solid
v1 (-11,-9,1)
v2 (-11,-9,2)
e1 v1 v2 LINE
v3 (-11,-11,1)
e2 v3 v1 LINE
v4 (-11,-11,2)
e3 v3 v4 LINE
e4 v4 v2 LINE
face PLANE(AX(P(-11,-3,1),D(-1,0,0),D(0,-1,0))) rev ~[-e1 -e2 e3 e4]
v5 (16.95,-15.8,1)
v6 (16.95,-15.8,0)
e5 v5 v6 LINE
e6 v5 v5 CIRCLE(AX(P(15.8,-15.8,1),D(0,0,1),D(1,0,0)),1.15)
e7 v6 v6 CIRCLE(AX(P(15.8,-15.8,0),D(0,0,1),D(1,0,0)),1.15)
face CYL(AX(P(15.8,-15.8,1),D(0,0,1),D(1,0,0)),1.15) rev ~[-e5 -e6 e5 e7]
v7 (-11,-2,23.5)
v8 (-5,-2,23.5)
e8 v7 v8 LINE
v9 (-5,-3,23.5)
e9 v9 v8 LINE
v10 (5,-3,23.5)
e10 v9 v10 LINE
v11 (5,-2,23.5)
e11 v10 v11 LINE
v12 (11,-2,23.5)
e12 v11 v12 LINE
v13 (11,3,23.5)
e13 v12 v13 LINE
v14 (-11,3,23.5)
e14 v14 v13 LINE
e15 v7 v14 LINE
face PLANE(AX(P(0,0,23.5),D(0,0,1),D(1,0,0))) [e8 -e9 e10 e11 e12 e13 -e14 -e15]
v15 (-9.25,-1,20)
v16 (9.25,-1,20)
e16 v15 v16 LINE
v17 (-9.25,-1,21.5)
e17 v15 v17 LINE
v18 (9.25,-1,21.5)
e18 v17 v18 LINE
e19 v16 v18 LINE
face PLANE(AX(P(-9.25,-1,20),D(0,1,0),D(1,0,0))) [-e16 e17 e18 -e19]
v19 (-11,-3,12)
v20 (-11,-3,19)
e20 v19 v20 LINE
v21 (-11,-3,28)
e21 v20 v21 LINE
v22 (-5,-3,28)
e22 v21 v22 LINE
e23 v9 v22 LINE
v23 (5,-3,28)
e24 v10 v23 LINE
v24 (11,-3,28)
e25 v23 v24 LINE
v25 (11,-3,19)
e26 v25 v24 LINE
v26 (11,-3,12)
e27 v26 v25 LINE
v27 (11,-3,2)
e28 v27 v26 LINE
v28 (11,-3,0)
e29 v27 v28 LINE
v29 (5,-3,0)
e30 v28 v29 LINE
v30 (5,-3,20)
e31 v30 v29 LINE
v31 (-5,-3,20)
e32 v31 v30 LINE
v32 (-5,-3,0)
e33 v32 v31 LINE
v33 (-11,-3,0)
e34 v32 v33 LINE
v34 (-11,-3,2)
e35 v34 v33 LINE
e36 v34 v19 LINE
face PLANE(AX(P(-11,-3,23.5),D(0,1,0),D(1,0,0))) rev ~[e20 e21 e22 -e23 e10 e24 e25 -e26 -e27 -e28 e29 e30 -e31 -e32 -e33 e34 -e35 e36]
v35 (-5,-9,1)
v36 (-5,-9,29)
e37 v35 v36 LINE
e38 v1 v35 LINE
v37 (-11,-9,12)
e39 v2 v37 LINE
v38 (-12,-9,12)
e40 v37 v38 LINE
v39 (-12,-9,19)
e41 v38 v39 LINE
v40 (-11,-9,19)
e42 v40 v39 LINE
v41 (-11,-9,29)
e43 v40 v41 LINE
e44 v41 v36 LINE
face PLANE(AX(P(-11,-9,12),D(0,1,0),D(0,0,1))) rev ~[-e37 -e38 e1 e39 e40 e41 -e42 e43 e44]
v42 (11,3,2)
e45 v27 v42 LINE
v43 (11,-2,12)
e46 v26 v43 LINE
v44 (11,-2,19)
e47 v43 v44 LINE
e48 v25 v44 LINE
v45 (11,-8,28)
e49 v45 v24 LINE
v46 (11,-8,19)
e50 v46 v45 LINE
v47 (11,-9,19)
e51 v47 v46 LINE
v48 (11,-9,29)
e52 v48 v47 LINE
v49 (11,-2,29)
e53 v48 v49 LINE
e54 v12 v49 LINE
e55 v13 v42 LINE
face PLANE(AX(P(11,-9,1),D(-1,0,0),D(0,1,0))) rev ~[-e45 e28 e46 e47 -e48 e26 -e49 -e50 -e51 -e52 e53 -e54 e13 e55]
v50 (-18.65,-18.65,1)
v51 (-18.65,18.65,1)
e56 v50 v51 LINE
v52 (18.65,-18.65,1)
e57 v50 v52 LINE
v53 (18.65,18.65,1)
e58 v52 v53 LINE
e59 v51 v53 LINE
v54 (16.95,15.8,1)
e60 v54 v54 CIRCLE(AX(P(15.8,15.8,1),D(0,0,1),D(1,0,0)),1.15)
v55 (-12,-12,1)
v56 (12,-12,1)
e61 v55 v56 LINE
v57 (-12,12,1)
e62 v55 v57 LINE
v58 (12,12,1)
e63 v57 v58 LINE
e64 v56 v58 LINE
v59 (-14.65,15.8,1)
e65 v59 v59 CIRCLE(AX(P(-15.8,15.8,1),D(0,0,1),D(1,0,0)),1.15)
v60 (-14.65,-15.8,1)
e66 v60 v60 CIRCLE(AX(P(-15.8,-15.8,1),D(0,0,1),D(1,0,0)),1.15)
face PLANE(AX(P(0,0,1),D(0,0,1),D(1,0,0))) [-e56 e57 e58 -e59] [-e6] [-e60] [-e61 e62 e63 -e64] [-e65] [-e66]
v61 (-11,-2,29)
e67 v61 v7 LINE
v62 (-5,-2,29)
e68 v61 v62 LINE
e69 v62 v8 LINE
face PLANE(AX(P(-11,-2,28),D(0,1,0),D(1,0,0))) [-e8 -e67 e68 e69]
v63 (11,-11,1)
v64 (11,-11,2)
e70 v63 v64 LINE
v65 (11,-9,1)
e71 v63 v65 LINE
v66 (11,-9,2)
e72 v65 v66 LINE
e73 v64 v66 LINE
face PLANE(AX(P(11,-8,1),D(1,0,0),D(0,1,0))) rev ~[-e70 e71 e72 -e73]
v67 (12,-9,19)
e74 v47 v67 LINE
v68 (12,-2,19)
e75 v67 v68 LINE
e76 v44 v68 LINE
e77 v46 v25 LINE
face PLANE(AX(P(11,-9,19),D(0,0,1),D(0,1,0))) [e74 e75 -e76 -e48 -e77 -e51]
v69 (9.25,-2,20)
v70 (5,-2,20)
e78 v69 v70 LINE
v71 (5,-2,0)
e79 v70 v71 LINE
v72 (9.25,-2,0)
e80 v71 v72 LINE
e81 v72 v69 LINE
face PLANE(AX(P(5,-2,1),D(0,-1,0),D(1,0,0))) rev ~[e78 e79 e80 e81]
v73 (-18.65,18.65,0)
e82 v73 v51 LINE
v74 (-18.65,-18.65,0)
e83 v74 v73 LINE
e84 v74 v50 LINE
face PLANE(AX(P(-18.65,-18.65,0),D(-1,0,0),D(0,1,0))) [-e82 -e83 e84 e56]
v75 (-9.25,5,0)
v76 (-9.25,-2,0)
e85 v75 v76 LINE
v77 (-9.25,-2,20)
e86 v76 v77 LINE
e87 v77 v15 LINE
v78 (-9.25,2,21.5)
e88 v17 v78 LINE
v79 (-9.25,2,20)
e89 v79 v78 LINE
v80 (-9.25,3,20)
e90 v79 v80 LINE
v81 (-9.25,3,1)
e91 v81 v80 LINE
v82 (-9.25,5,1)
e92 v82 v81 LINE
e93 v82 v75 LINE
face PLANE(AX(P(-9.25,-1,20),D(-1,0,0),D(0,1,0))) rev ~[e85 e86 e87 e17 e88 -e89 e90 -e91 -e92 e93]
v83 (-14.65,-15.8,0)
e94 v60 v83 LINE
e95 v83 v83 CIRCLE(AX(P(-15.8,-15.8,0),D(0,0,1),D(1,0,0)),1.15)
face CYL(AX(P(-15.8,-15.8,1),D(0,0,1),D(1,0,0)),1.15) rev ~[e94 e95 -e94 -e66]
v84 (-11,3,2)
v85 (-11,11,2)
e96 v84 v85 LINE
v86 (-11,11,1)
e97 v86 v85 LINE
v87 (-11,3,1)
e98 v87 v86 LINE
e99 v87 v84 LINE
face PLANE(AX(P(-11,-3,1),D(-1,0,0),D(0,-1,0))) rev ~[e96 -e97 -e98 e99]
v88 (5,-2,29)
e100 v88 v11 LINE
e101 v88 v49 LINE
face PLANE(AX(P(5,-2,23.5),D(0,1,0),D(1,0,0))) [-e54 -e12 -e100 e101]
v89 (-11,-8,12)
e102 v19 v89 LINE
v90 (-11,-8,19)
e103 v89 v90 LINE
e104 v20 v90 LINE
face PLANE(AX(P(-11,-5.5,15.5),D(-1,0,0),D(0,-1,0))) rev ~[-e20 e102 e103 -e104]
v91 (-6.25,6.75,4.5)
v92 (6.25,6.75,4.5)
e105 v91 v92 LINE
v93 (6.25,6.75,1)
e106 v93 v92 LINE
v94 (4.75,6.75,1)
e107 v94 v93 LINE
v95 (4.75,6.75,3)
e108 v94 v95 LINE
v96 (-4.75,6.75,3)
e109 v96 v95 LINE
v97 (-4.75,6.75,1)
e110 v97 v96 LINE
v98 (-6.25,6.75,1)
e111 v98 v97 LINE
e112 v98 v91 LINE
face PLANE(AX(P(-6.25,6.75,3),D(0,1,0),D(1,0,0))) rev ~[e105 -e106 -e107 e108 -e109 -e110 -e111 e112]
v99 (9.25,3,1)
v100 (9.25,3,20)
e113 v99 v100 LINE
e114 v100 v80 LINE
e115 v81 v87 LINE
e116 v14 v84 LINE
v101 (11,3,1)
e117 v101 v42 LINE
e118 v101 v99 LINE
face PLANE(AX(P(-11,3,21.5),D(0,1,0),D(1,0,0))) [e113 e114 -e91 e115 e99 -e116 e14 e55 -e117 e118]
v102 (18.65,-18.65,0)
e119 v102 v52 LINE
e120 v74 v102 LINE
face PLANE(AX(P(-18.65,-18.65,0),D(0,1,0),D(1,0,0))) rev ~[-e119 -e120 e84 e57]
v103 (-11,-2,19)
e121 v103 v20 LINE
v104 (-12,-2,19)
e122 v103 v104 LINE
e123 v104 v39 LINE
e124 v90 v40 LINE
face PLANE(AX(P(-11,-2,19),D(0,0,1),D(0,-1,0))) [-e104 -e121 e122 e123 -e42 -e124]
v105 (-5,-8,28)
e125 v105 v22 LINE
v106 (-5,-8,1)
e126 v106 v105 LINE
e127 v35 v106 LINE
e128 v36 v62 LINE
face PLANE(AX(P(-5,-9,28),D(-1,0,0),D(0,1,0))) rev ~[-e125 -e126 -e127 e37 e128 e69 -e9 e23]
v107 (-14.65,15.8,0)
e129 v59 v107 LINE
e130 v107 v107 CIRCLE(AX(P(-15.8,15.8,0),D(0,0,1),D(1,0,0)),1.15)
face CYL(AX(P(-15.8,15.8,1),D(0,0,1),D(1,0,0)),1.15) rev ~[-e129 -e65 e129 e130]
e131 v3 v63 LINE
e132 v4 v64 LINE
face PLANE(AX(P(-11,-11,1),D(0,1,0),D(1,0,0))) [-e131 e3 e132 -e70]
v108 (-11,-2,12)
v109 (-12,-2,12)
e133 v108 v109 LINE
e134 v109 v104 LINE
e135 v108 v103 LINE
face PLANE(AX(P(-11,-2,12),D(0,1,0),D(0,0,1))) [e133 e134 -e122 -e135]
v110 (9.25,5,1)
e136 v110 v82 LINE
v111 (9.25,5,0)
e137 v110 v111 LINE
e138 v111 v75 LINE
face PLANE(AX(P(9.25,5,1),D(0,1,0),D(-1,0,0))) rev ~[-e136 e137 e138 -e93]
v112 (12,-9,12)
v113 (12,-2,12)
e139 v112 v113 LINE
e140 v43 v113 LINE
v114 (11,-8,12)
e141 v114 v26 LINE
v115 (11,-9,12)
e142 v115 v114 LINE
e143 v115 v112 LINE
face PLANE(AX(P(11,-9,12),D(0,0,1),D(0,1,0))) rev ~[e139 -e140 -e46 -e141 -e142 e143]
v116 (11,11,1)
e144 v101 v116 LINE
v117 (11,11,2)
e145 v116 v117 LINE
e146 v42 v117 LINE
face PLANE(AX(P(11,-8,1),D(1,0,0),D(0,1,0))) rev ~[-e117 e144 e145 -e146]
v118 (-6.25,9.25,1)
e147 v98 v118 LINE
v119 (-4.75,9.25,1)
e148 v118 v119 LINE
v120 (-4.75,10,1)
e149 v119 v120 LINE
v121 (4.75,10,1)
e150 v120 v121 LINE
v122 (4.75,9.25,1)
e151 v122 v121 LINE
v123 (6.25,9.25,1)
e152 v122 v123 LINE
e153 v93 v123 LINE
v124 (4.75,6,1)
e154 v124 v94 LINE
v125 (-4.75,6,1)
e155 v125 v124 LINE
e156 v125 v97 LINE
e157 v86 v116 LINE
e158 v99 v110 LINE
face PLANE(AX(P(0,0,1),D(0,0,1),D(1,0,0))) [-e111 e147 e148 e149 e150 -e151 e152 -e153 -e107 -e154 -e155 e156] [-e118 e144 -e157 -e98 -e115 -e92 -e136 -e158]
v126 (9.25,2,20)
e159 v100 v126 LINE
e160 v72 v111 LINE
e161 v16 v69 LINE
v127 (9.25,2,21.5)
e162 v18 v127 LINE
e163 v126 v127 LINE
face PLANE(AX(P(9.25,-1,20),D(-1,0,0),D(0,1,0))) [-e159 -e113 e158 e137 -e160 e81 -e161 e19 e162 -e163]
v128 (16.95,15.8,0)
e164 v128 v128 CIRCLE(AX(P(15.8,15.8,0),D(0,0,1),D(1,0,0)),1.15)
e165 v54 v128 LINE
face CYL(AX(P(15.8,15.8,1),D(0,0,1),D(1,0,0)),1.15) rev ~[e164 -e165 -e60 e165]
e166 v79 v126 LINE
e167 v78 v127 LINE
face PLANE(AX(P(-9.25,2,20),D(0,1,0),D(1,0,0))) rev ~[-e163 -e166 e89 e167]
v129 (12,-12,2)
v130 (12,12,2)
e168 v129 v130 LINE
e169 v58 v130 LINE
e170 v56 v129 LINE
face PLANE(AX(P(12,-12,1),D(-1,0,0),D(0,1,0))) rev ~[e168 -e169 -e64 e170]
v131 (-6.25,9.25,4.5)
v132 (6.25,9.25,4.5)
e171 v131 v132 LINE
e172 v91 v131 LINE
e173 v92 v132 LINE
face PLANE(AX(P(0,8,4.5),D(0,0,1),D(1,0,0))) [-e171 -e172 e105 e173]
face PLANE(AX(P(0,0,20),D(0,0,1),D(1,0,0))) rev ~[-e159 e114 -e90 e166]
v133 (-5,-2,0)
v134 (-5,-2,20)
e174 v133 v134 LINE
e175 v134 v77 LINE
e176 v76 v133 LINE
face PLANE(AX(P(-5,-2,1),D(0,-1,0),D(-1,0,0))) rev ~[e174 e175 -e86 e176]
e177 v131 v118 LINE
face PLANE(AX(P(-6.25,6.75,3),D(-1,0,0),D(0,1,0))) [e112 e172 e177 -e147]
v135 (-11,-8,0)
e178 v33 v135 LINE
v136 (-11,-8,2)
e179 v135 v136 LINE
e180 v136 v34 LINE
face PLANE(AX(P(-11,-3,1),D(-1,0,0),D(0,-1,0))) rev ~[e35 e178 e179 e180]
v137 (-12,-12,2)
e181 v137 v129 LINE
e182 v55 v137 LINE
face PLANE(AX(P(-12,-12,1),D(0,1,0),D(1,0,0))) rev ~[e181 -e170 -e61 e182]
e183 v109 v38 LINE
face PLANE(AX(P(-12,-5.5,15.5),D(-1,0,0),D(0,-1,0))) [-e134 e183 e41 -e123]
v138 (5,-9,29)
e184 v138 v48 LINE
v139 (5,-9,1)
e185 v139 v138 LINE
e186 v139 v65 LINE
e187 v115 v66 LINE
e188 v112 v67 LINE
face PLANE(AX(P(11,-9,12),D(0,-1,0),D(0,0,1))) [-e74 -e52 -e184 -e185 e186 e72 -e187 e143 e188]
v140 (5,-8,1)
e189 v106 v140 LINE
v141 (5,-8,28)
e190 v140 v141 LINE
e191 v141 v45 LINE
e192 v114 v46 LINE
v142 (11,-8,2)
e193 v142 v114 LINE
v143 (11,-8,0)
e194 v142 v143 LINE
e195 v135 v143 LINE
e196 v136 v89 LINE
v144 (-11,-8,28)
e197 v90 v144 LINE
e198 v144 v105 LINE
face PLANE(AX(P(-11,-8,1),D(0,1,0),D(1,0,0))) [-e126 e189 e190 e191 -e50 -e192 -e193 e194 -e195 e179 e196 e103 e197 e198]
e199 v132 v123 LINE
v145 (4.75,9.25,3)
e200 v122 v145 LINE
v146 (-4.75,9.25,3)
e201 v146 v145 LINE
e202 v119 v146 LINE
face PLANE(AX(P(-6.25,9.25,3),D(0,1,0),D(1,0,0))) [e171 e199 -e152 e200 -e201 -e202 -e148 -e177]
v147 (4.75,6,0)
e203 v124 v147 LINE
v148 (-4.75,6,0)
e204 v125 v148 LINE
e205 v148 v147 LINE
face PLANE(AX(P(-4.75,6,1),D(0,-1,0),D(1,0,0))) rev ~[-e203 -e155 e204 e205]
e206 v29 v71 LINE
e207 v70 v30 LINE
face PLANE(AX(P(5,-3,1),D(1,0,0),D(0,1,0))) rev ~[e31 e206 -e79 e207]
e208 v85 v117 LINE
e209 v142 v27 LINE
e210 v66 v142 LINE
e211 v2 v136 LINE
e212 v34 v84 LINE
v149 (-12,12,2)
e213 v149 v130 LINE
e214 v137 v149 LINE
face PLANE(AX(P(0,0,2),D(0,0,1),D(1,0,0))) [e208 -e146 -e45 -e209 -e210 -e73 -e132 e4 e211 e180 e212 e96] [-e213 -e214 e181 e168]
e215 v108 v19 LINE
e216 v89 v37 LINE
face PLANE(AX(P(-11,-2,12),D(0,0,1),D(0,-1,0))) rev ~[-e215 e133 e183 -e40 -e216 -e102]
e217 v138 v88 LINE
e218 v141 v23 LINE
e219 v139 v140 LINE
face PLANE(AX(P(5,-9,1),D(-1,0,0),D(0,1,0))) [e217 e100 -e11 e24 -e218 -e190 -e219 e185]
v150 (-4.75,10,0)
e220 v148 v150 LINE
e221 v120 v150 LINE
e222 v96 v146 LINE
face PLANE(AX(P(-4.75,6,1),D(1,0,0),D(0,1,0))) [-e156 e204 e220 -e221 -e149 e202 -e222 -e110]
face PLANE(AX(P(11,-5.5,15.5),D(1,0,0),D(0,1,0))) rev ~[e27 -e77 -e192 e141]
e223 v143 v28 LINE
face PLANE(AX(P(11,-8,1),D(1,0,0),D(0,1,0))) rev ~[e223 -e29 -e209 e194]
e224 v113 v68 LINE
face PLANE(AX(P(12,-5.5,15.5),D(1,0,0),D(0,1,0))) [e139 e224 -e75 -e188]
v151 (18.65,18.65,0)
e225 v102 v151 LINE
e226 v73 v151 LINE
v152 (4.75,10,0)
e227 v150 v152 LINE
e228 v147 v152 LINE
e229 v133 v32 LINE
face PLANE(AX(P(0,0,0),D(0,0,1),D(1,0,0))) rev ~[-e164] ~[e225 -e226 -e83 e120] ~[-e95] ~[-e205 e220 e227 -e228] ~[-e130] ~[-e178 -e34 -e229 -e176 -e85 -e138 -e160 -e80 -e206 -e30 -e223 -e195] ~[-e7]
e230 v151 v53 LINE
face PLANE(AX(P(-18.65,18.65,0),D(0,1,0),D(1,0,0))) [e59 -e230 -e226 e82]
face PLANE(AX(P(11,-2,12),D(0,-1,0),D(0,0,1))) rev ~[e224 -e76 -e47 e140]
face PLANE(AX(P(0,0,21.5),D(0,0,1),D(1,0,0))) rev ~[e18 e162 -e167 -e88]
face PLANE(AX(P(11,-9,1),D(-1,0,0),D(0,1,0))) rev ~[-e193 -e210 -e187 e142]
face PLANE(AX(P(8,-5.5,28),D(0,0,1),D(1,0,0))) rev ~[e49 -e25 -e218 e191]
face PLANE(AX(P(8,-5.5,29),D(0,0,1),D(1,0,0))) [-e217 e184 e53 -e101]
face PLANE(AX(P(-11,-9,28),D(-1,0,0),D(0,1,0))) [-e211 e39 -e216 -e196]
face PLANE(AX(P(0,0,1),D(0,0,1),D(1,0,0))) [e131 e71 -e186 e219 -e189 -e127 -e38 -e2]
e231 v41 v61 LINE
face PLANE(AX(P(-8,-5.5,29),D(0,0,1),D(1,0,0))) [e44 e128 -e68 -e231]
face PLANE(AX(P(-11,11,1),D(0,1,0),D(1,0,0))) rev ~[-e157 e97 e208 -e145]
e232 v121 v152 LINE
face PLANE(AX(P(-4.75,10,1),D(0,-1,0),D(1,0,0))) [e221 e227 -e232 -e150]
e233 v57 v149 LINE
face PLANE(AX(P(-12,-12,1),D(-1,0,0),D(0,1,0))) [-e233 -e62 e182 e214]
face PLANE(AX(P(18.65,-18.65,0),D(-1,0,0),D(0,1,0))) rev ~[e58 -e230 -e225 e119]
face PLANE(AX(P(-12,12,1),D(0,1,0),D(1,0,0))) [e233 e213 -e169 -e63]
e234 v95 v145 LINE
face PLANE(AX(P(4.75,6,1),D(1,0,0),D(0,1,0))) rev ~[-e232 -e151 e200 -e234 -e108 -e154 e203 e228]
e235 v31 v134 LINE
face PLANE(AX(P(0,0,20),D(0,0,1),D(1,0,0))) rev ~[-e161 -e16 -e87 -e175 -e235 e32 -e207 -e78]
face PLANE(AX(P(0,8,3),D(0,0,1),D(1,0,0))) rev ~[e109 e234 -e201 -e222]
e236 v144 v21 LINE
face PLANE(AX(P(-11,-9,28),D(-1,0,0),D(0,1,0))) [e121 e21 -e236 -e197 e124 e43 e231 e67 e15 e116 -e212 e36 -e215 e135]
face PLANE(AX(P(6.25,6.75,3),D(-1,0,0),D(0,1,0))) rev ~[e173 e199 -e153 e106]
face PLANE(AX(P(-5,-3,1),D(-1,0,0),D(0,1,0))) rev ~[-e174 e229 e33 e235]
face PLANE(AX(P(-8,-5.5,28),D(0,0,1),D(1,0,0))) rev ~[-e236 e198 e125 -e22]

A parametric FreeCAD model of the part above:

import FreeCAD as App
import Part
import Sketcher
from FreeCAD import Vector
Q = App.Units.Quantity

doc = App.newDocument("Part")
params = doc.addObject("Spreadsheet::Sheet", "Params")
for row, (alias, value) in enumerate([
    ("sketch1_width", "37.3 mm"),
    ("pad1_length", "1 mm"),
    ("sketch2_diameter", "2.3 mm"),
    ("sketch3_width", "24 mm"),
    ("sketch3_width2", "22 mm"),
    ("pad2_length", "1 mm"),
    ("sketch4_width", "22 mm"),
    ("sketch4_width2", "6 mm"),
    ("sketch4_height", "5 mm"),
    ("sketch4_height2", "1 mm"),
    ("sketch4_height3", "7 mm"),
    ("pocket2_length", "5 mm"),
    ("sketch5_height", "4 mm"),
    ("sketch5_width", "9.5 mm"),
    ("pocket3_length", "5 mm"),
    ("sketch6_width", "1.5 mm"),
    ("sketch6_height", "2.5 mm"),
    ("pad3_length", "2 mm"),
    ("sketch7_width", "12.5 mm"),
    ("sketch7_height", "2.5 mm"),
    ("pad4_length", "1.5 mm"),
    ("sketch8_width", "6 mm"),
    ("sketch8_height", "1 mm"),
    ("sketch8_width2", "4.25 mm"),
    ("pad5_length", "19 mm"),
    ("sketch9_width", "22 mm"),
    ("sketch9_height", "6 mm"),
    ("sketch9_height2", "3 mm"),
    ("sketch9_width2", "18.5 mm"),
    ("pad6_length", "1.5 mm"),
    ("sketch10_width", "22 mm"),
    ("sketch10_height", "6 mm"),
    ("pad7_length", "2 mm"),
    ("sketch11_width", "6 mm"),
    ("sketch11_height", "1 mm"),
    ("pad8_length", "27 mm"),
    ("sketch12_width", "6 mm"),
    ("sketch12_height", "1 mm"),
    ("pad9_length", "4.5 mm"),
    ("sketch13_width", "6 mm"),
    ("sketch13_height", "7 mm"),
    ("pad10_length", "1 mm"),
    ("sketch14_width", "7 mm"),
    ("pad11_length", "1 mm"),
    ("sketch15_width", "7 mm"),
    ("pad12_length", "1 mm"),
], start=1):
    params.set(f"A{row}", alias)
    params.set(f"B{row}", "=" + value)
    params.setAlias(f"B{row}", alias)

body = doc.addObject("PartDesign::Body", "Body")

# Sketch on XY plane
sketch1 = body.newObject("Sketcher::SketchObject", "Sketch")
sketch1.AttachmentSupport = (doc.getObject("XY_Plane"), [""])
sketch1.MapMode = "FlatFace"
sketch1.addGeometry([
    Part.LineSegment(Vector(-19, 19, 0), Vector(-19, -19, 0)),
    Part.LineSegment(Vector(-19, -19, 0), Vector(19, -19, 0)),
    Part.LineSegment(Vector(19, -19, 0), Vector(19, 19, 0)),
    Part.LineSegment(Vector(19, 19, 0), Vector(-19, 19, 0)),
], False)
sketch1.addConstraint([
    Sketcher.Constraint("Coincident", 0, 2, 1, 1),
    Sketcher.Constraint("Coincident", 1, 2, 2, 1),
    Sketcher.Constraint("Coincident", 2, 2, 3, 1),
    Sketcher.Constraint("Coincident", 3, 2, 0, 1),
    Sketcher.Constraint("Vertical", 0),
    Sketcher.Constraint("Horizontal", 1),
    Sketcher.Constraint("Vertical", 2),
    Sketcher.Constraint("Horizontal", 3),
    Sketcher.Constraint("Symmetric", 0, 2, 2, 2, -1, 1),
    Sketcher.Constraint("Equal", 3, 0),
    Sketcher.Constraint("DistanceX", 1, 1, 1, 2, Q("37.3 mm")),
])
sketch1.setExpression("Constraints[10]", "Params.sketch1_width")
pad1 = body.newObject("PartDesign::Pad", "Pad")
pad1.Profile = sketch1
pad1.setExpression("Length", "Params.pad1_length")

# Sketch on XY plane
sketch2 = body.newObject("Sketcher::SketchObject", "Sketch001")
sketch2.AttachmentSupport = (doc.getObject("XY_Plane"), [""])
sketch2.MapMode = "FlatFace"
sketch2.AttachmentOffset = App.Placement(Vector(0, 0, 1), App.Rotation())
sketch2.addGeometry([
    Part.Circle(Vector(15.8, 15.8, 0), Vector(0, 0, 1), 1.1),
    Part.Circle(Vector(-15.8, -15.8, 0), Vector(0, 0, 1), 1.1),
    Part.Circle(Vector(15.8, -15.8, 0), Vector(0, 0, 1), 1.1),
    Part.Circle(Vector(-15.8, 15.8, 0), Vector(0, 0, 1), 1.1),
], False)
sketch2.addConstraint([
    Sketcher.Constraint("Equal", 0, 1),
    Sketcher.Constraint("Equal", 1, 2),
    Sketcher.Constraint("Equal", 2, 3),
    Sketcher.Constraint("Symmetric", 0, 3, 1, 3, -1, 1),
    Sketcher.Constraint("Symmetric", 2, 3, 3, 3, -1, 1),
    Sketcher.Constraint("Symmetric", 1, 3, 2, 3, -2),
    Sketcher.Constraint("Diameter", 0, Q("2.3 mm")),
    Sketcher.Constraint("DistanceX", -1, 1, 0, 3, Q("15.8 mm")),
    Sketcher.Constraint("DistanceY", -1, 1, 0, 3, Q("15.8 mm")),
])
sketch2.setExpression("Constraints[6]", "Params.sketch2_diameter")
pocket1 = body.newObject("PartDesign::Pocket", "Pocket")
pocket1.Profile = sketch2
pocket1.Type = "ThroughAll"

# Sketch on XY plane
sketch3 = body.newObject("Sketcher::SketchObject", "Sketch002")
sketch3.AttachmentSupport = (doc.getObject("XY_Plane"), [""])
sketch3.MapMode = "FlatFace"
sketch3.AttachmentOffset = App.Placement(Vector(0, 0, 1), App.Rotation())
sketch3.addGeometry([
    Part.LineSegment(Vector(-12, 12, 0), Vector(-12, -12, 0)),  # 0
    Part.LineSegment(Vector(-12, -12, 0), Vector(12, -12, 0)),  # 1
    Part.LineSegment(Vector(12, -12, 0), Vector(12, 12, 0)),  # 2
    Part.LineSegment(Vector(12, 12, 0), Vector(-12, 12, 0)),  # 3
    Part.LineSegment(Vector(11, -11, 0), Vector(-11, -11, 0)),  # 4
    Part.LineSegment(Vector(-11, -11, 0), Vector(-11, 11, 0)),  # 5
    Part.LineSegment(Vector(-11, 11, 0), Vector(11, 11, 0)),  # 6
    Part.LineSegment(Vector(11, 11, 0), Vector(11, -11, 0)),  # 7
], False)
sketch3.addConstraint([
    Sketcher.Constraint("Coincident", 0, 2, 1, 1),
    Sketcher.Constraint("Coincident", 1, 2, 2, 1),
    Sketcher.Constraint("Coincident", 2, 2, 3, 1),
    Sketcher.Constraint("Coincident", 3, 2, 0, 1),
    Sketcher.Constraint("Coincident", 4, 2, 5, 1),
    Sketcher.Constraint("Coincident", 5, 2, 6, 1),
    Sketcher.Constraint("Coincident", 6, 2, 7, 1),
    Sketcher.Constraint("Coincident", 7, 2, 4, 1),
    Sketcher.Constraint("Vertical", 0),
    Sketcher.Constraint("Horizontal", 1),
    Sketcher.Constraint("Vertical", 2),
    Sketcher.Constraint("Horizontal", 3),
    Sketcher.Constraint("Horizontal", 4),
    Sketcher.Constraint("Vertical", 5),
    Sketcher.Constraint("Horizontal", 6),
    Sketcher.Constraint("Vertical", 7),
    Sketcher.Constraint("Symmetric", 0, 2, 2, 2, -1, 1),
    Sketcher.Constraint("Symmetric", 4, 2, 6, 2, -1, 1),
    Sketcher.Constraint("Equal", 3, 0),
    Sketcher.Constraint("Equal", 6, 5),
    Sketcher.Constraint("DistanceX", 1, 1, 1, 2, Q("24 mm")),
    Sketcher.Constraint("DistanceX", 4, 2, 4, 1, Q("22 mm")),
])
sketch3.setExpression("Constraints[20]", "Params.sketch3_width")
sketch3.setExpression("Constraints[21]", "Params.sketch3_width2")
pad2 = body.newObject("PartDesign::Pad", "Pad001")
pad2.Profile = sketch3
pad2.setExpression("Length", "Params.pad2_length")

# Sketch on XY plane
sketch4 = body.newObject("Sketcher::SketchObject", "Sketch003")
sketch4.AttachmentSupport = (doc.getObject("XY_Plane"), [""])
sketch4.MapMode = "FlatFace"
sketch4.AttachmentOffset = App.Placement(Vector(0, 0, 1), App.Rotation())
sketch4.addGeometry([
    Part.LineSegment(Vector(-11, -3, 0), Vector(-11, -8, 0)),  # 0
    Part.LineSegment(Vector(-11, -8, 0), Vector(11, -8, 0)),  # 1
    Part.LineSegment(Vector(11, -8, 0), Vector(11, -3, 0)),  # 2
    Part.LineSegment(Vector(11, -3, 0), Vector(5, -3, 0)),  # 3
    Part.LineSegment(Vector(5, -3, 0), Vector(5, -2, 0)),  # 4
    Part.LineSegment(Vector(5, -2, 0), Vector(9.2, -2, 0)),  # 5
    Part.LineSegment(Vector(9.2, -2, 0), Vector(9.2, 5, 0)),  # 6
    Part.LineSegment(Vector(9.2, 5, 0), Vector(-9.2, 5, 0)),  # 7
    Part.LineSegment(Vector(-9.2, 5, 0), Vector(-9.2, -2, 0)),  # 8
    Part.LineSegment(Vector(-9.2, -2, 0), Vector(-5, -2, 0)),  # 9
    Part.LineSegment(Vector(-5, -2, 0), Vector(-5, -3, 0)),  # 10
    Part.LineSegment(Vector(-5, -3, 0), Vector(-11, -3, 0)),  # 11
], False)
sketch4.addConstraint([
    Sketcher.Constraint("Coincident", 0, 2, 1, 1),
    Sketcher.Constraint("Coincident", 1, 2, 2, 1),
    Sketcher.Constraint("Coincident", 2, 2, 3, 1),
    Sketcher.Constraint("Coincident", 3, 2, 4, 1),
    Sketcher.Constraint("Coincident", 4, 2, 5, 1),
    Sketcher.Constraint("Coincident", 5, 2, 6, 1),
    Sketcher.Constraint("Coincident", 6, 2, 7, 1),
    Sketcher.Constraint("Coincident", 7, 2, 8, 1),
    Sketcher.Constraint("Coincident", 8, 2, 9, 1),
    Sketcher.Constraint("Coincident", 9, 2, 10, 1),
    Sketcher.Constraint("Coincident", 10, 2, 11, 1),
    Sketcher.Constraint("Coincident", 11, 2, 0, 1),
    Sketcher.Constraint("Vertical", 0),
    Sketcher.Constraint("Horizontal", 1),
    Sketcher.Constraint("Vertical", 2),
    Sketcher.Constraint("Horizontal", 3),
    Sketcher.Constraint("Vertical", 4),
    Sketcher.Constraint("Horizontal", 5),
    Sketcher.Constraint("Vertical", 6),
    Sketcher.Constraint("Horizontal", 7),
    Sketcher.Constraint("Vertical", 8),
    Sketcher.Constraint("Horizontal", 9),
    Sketcher.Constraint("Vertical", 10),
    Sketcher.Constraint("Horizontal", 11),
    Sketcher.Constraint("Symmetric", 5, 2, 8, 2, -2),
    Sketcher.Constraint("Symmetric", 3, 2, 10, 2, -2),
    Sketcher.Constraint("Equal", 3, 11),
    Sketcher.Constraint("DistanceX", 1, 1, 1, 2, Q("22 mm")),
    Sketcher.Constraint("DistanceX", 3, 2, 3, 1, Q("6 mm")),
    Sketcher.Constraint("DistanceY", 0, 2, 0, 1, Q("5 mm")),
    Sketcher.Constraint("DistanceY", 4, 1, 4, 2, Q("1 mm")),
    Sketcher.Constraint("DistanceY", 6, 1, 6, 2, Q("7 mm")),
    Sketcher.Constraint("DistanceX", 7, 2, 7, 1, Q("18.5 mm")),
    Sketcher.Constraint("DistanceY", 0, 2, -1, 1, Q("8 mm")),
])
sketch4.setExpression("Constraints[27]", "Params.sketch4_width")
sketch4.setExpression("Constraints[28]", "Params.sketch4_width2")
sketch4.setExpression("Constraints[29]", "Params.sketch4_height")
sketch4.setExpression("Constraints[30]", "Params.sketch4_height2")
sketch4.setExpression("Constraints[31]", "Params.sketch4_height3")
pocket2 = body.newObject("PartDesign::Pocket", "Pocket001")
pocket2.Profile = sketch4
pocket2.setExpression("Length", "Params.pocket2_length")

# Sketch on XY plane
sketch5 = body.newObject("Sketcher::SketchObject", "Sketch004")
sketch5.AttachmentSupport = (doc.getObject("XY_Plane"), [""])
sketch5.MapMode = "FlatFace"
sketch5.AttachmentOffset = App.Placement(Vector(0, 0, 1), App.Rotation())
sketch5.addGeometry([
    Part.LineSegment(Vector(-4.8, 10, 0), Vector(-4.8, 6, 0)),
    Part.LineSegment(Vector(-4.8, 6, 0), Vector(4.8, 6, 0)),
    Part.LineSegment(Vector(4.8, 6, 0), Vector(4.8, 10, 0)),
    Part.LineSegment(Vector(4.8, 10, 0), Vector(-4.8, 10, 0)),
], False)
sketch5.addConstraint([
    Sketcher.Constraint("Coincident", 0, 2, 1, 1),
    Sketcher.Constraint("Coincident", 1, 2, 2, 1),
    Sketcher.Constraint("Coincident", 2, 2, 3, 1),
    Sketcher.Constraint("Coincident", 3, 2, 0, 1),
    Sketcher.Constraint("Vertical", 0),
    Sketcher.Constraint("Horizontal", 1),
    Sketcher.Constraint("Vertical", 2),
    Sketcher.Constraint("Horizontal", 3),
    Sketcher.Constraint("DistanceY", 0, 2, 0, 1, Q("4 mm")),
    Sketcher.Constraint("DistanceX", 1, 1, 1, 2, Q("9.5 mm")),
    Sketcher.Constraint("DistanceY", -1, 1, 0, 2, Q("6 mm")),
    Sketcher.Constraint("DistanceX", 0, 2, -1, 1, Q("4.75 mm")),
])
sketch5.setExpression("Constraints[8]", "Params.sketch5_height")
sketch5.setExpression("Constraints[9]", "Params.sketch5_width")
pocket3 = body.newObject("PartDesign::Pocket", "Pocket002")
pocket3.Profile = sketch5
pocket3.setExpression("Length", "Params.pocket3_length")

# Sketch on XY plane
sketch6 = body.newObject("Sketcher::SketchObject", "Sketch005")
sketch6.AttachmentSupport = (doc.getObject("XY_Plane"), [""])
sketch6.MapMode = "FlatFace"
sketch6.AttachmentOffset = App.Placement(Vector(0, 0, 1), App.Rotation())
sketch6.addGeometry([
    Part.LineSegment(Vector(-6.2, 9.2, 0), Vector(-6.2, 6.8, 0)),  # 0
    Part.LineSegment(Vector(-6.2, 6.8, 0), Vector(-4.8, 6.8, 0)),  # 1
    Part.LineSegment(Vector(-4.8, 6.8, 0), Vector(-4.8, 9.2, 0)),  # 2
    Part.LineSegment(Vector(-4.8, 9.2, 0), Vector(-6.2, 9.2, 0)),  # 3
    Part.LineSegment(Vector(4.8, 9.2, 0), Vector(4.8, 6.8, 0)),  # 4
    Part.LineSegment(Vector(4.8, 6.8, 0), Vector(6.2, 6.8, 0)),  # 5
    Part.LineSegment(Vector(6.2, 6.8, 0), Vector(6.2, 9.2, 0)),  # 6
    Part.LineSegment(Vector(6.2, 9.2, 0), Vector(4.8, 9.2, 0)),  # 7
], False)
sketch6.addConstraint([
    Sketcher.Constraint("Coincident", 0, 2, 1, 1),
    Sketcher.Constraint("Coincident", 1, 2, 2, 1),
    Sketcher.Constraint("Coincident", 2, 2, 3, 1),
    Sketcher.Constraint("Coincident", 3, 2, 0, 1),
    Sketcher.Constraint("Coincident", 4, 2, 5, 1),
    Sketcher.Constraint("Coincident", 5, 2, 6, 1),
    Sketcher.Constraint("Coincident", 6, 2, 7, 1),
    Sketcher.Constraint("Coincident", 7, 2, 4, 1),
    Sketcher.Constraint("Vertical", 0),
    Sketcher.Constraint("Horizontal", 1),
    Sketcher.Constraint("Vertical", 2),
    Sketcher.Constraint("Horizontal", 3),
    Sketcher.Constraint("Vertical", 4),
    Sketcher.Constraint("Horizontal", 5),
    Sketcher.Constraint("Vertical", 6),
    Sketcher.Constraint("Horizontal", 7),
    Sketcher.Constraint("Symmetric", 1, 2, 4, 2, -2),
    Sketcher.Constraint("Symmetric", 3, 2, 6, 2, -2),
    Sketcher.Constraint("DistanceX", 1, 1, 1, 2, Q("1.5 mm")),
    Sketcher.Constraint("DistanceY", 0, 2, 0, 1, Q("2.5 mm")),
    Sketcher.Constraint("DistanceX", 0, 2, 4, 2, Q("11 mm")),
    Sketcher.Constraint("DistanceY", -1, 1, 0, 2, Q("6.75 mm")),
])
sketch6.setExpression("Constraints[18]", "Params.sketch6_width")
sketch6.setExpression("Constraints[19]", "Params.sketch6_height")
pad3 = body.newObject("PartDesign::Pad", "Pad002")
pad3.Profile = sketch6
pad3.setExpression("Length", "Params.pad3_length")

# Sketch on XY plane
sketch7 = body.newObject("Sketcher::SketchObject", "Sketch006")
sketch7.AttachmentSupport = (doc.getObject("XY_Plane"), [""])
sketch7.MapMode = "FlatFace"
sketch7.AttachmentOffset = App.Placement(Vector(0, 0, 3), App.Rotation())
sketch7.addGeometry([
    Part.LineSegment(Vector(-6.2, 9.2, 0), Vector(-6.2, 6.8, 0)),
    Part.LineSegment(Vector(-6.2, 6.8, 0), Vector(6.2, 6.8, 0)),
    Part.LineSegment(Vector(6.2, 6.8, 0), Vector(6.2, 9.2, 0)),
    Part.LineSegment(Vector(6.2, 9.2, 0), Vector(-6.2, 9.2, 0)),
], False)
sketch7.addConstraint([
    Sketcher.Constraint("Coincident", 0, 2, 1, 1),
    Sketcher.Constraint("Coincident", 1, 2, 2, 1),
    Sketcher.Constraint("Coincident", 2, 2, 3, 1),
    Sketcher.Constraint("Coincident", 3, 2, 0, 1),
    Sketcher.Constraint("Vertical", 0),
    Sketcher.Constraint("Horizontal", 1),
    Sketcher.Constraint("Vertical", 2),
    Sketcher.Constraint("Horizontal", 3),
    Sketcher.Constraint("DistanceX", 1, 1, 1, 2, Q("12.5 mm")),
    Sketcher.Constraint("DistanceY", 0, 2, 0, 1, Q("2.5 mm")),
    Sketcher.Constraint("DistanceX", 0, 2, -1, 1, Q("6.25 mm")),
    Sketcher.Constraint("DistanceY", -1, 1, 0, 2, Q("6.75 mm")),
])
sketch7.setExpression("Constraints[8]", "Params.sketch7_width")
sketch7.setExpression("Constraints[9]", "Params.sketch7_height")
pad4 = body.newObject("PartDesign::Pad", "Pad003")
pad4.Profile = sketch7
pad4.setExpression("Length", "Params.pad4_length")

# Sketch on XY plane
sketch8 = body.newObject("Sketcher::SketchObject", "Sketch007")
sketch8.AttachmentSupport = (doc.getObject("XY_Plane"), [""])
sketch8.MapMode = "FlatFace"
sketch8.AttachmentOffset = App.Placement(Vector(0, 0, 1), App.Rotation())
sketch8.addGeometry([
    Part.LineSegment(Vector(-11, 3, 0), Vector(-11, -3, 0)),  # 0
    Part.LineSegment(Vector(-11, -3, 0), Vector(-5, -3, 0)),  # 1
    Part.LineSegment(Vector(-5, -3, 0), Vector(-5, -2, 0)),  # 2
    Part.LineSegment(Vector(-5, -2, 0), Vector(-9.2, -2, 0)),  # 3
    Part.LineSegment(Vector(-9.2, -2, 0), Vector(-9.2, 3, 0)),  # 4
    Part.LineSegment(Vector(-9.2, 3, 0), Vector(-11, 3, 0)),  # 5
    Part.LineSegment(Vector(9.2, 3, 0), Vector(9.2, -2, 0)),  # 6
    Part.LineSegment(Vector(9.2, -2, 0), Vector(5, -2, 0)),  # 7
    Part.LineSegment(Vector(5, -2, 0), Vector(5, -3, 0)),  # 8
    Part.LineSegment(Vector(5, -3, 0), Vector(11, -3, 0)),  # 9
    Part.LineSegment(Vector(11, -3, 0), Vector(11, 3, 0)),  # 10
    Part.LineSegment(Vector(11, 3, 0), Vector(9.2, 3, 0)),  # 11
], False)
sketch8.addConstraint([
    Sketcher.Constraint("Coincident", 0, 2, 1, 1),
    Sketcher.Constraint("Coincident", 1, 2, 2, 1),
    Sketcher.Constraint("Coincident", 2, 2, 3, 1),
    Sketcher.Constraint("Coincident", 3, 2, 4, 1),
    Sketcher.Constraint("Coincident", 4, 2, 5, 1),
    Sketcher.Constraint("Coincident", 5, 2, 0, 1),
    Sketcher.Constraint("Coincident", 6, 2, 7, 1),
    Sketcher.Constraint("Coincident", 7, 2, 8, 1),
    Sketcher.Constraint("Coincident", 8, 2, 9, 1),
    Sketcher.Constraint("Coincident", 9, 2, 10, 1),
    Sketcher.Constraint("Coincident", 10, 2, 11, 1),
    Sketcher.Constraint("Coincident", 11, 2, 6, 1),
    Sketcher.Constraint("Vertical", 0),
    Sketcher.Constraint("Horizontal", 1),
    Sketcher.Constraint("Vertical", 2),
    Sketcher.Constraint("Horizontal", 3),
    Sketcher.Constraint("Vertical", 4),
    Sketcher.Constraint("Horizontal", 5),
    Sketcher.Constraint("Vertical", 6),
    Sketcher.Constraint("Horizontal", 7),
    Sketcher.Constraint("Vertical", 8),
    Sketcher.Constraint("Horizontal", 9),
    Sketcher.Constraint("Vertical", 10),
    Sketcher.Constraint("Horizontal", 11),
    Sketcher.Constraint("Symmetric", 5, 2, 9, 2, -1, 1),
    Sketcher.Constraint("Symmetric", 3, 2, 6, 2, -2),
    Sketcher.Constraint("Symmetric", 1, 2, 8, 2, -2),
    Sketcher.Constraint("Horizontal", 5, 2, 10, 2),
    Sketcher.Constraint("Equal", 9, 0),
    Sketcher.Constraint("DistanceX", 1, 1, 1, 2, Q("6 mm")),
    Sketcher.Constraint("DistanceY", 2, 1, 2, 2, Q("1 mm")),
    Sketcher.Constraint("DistanceX", 0, 2, -1, 1, Q("11 mm")),
    Sketcher.Constraint("DistanceX", 3, 2, 3, 1, Q("4.25 mm")),
])
sketch8.setExpression("Constraints[29]", "Params.sketch8_width")
sketch8.setExpression("Constraints[30]", "Params.sketch8_height")
sketch8.setExpression("Constraints[32]", "Params.sketch8_width2")
pad5 = body.newObject("PartDesign::Pad", "Pad004")
pad5.Profile = sketch8
pad5.setExpression("Length", "Params.pad5_length")

# Sketch on XY plane
sketch9 = body.newObject("Sketcher::SketchObject", "Sketch008")
sketch9.AttachmentSupport = (doc.getObject("XY_Plane"), [""])
sketch9.MapMode = "FlatFace"
sketch9.AttachmentOffset = App.Placement(Vector(0, 0, 20), App.Rotation())
sketch9.addGeometry([
    Part.LineSegment(Vector(-11, 3, 0), Vector(-11, -3, 0)),  # 0
    Part.LineSegment(Vector(-11, -3, 0), Vector(11, -3, 0)),  # 1
    Part.LineSegment(Vector(11, -3, 0), Vector(11, 3, 0)),  # 2
    Part.LineSegment(Vector(11, 3, 0), Vector(-11, 3, 0)),  # 3
    Part.LineSegment(Vector(9.2, -1, 0), Vector(-9.2, -1, 0)),  # 4
    Part.LineSegment(Vector(-9.2, -1, 0), Vector(-9.2, 2, 0)),  # 5
    Part.LineSegment(Vector(-9.2, 2, 0), Vector(9.2, 2, 0)),  # 6
    Part.LineSegment(Vector(9.2, 2, 0), Vector(9.2, -1, 0)),  # 7
], False)
sketch9.addConstraint([
    Sketcher.Constraint("Coincident", 0, 2, 1, 1),
    Sketcher.Constraint("Coincident", 1, 2, 2, 1),
    Sketcher.Constraint("Coincident", 2, 2, 3, 1),
    Sketcher.Constraint("Coincident", 3, 2, 0, 1),
    Sketcher.Constraint("Coincident", 4, 2, 5, 1),
    Sketcher.Constraint("Coincident", 5, 2, 6, 1),
    Sketcher.Constraint("Coincident", 6, 2, 7, 1),
    Sketcher.Constraint("Coincident", 7, 2, 4, 1),
    Sketcher.Constraint("Vertical", 0),
    Sketcher.Constraint("Horizontal", 1),
    Sketcher.Constraint("Vertical", 2),
    Sketcher.Constraint("Horizontal", 3),
    Sketcher.Constraint("Horizontal", 4),
    Sketcher.Constraint("Vertical", 5),
    Sketcher.Constraint("Horizontal", 6),
    Sketcher.Constraint("Vertical", 7),
    Sketcher.Constraint("Symmetric", 0, 2, 2, 2, -1, 1),
    Sketcher.Constraint("DistanceX", 1, 1, 1, 2, Q("22 mm")),
    Sketcher.Constraint("DistanceY", 0, 2, 0, 1, Q("6 mm")),
    Sketcher.Constraint("DistanceY", 5, 1, 5, 2, Q("3 mm")),
    Sketcher.Constraint("DistanceX", 4, 2, 4, 1, Q("18.5 mm")),
    Sketcher.Constraint("DistanceY", 4, 2, -1, 1, Q("1 mm")),
    Sketcher.Constraint("DistanceX", 4, 2, -1, 1, Q("9.25 mm")),
])
sketch9.setExpression("Constraints[17]", "Params.sketch9_width")
sketch9.setExpression("Constraints[18]", "Params.sketch9_height")
sketch9.setExpression("Constraints[19]", "Params.sketch9_height2")
sketch9.setExpression("Constraints[20]", "Params.sketch9_width2")
pad6 = body.newObject("PartDesign::Pad", "Pad005")
pad6.Profile = sketch9
pad6.setExpression("Length", "Params.pad6_length")

# Sketch on XY plane
sketch10 = body.newObject("Sketcher::SketchObject", "Sketch009")
sketch10.AttachmentSupport = (doc.getObject("XY_Plane"), [""])
sketch10.MapMode = "FlatFace"
sketch10.AttachmentOffset = App.Placement(Vector(0, 0, 21.5), App.Rotation())
sketch10.addGeometry([
    Part.LineSegment(Vector(-11, 3, 0), Vector(-11, -3, 0)),
    Part.LineSegment(Vector(-11, -3, 0), Vector(11, -3, 0)),
    Part.LineSegment(Vector(11, -3, 0), Vector(11, 3, 0)),
    Part.LineSegment(Vector(11, 3, 0), Vector(-11, 3, 0)),
], False)
sketch10.addConstraint([
    Sketcher.Constraint("Coincident", 0, 2, 1, 1),
    Sketcher.Constraint("Coincident", 1, 2, 2, 1),
    Sketcher.Constraint("Coincident", 2, 2, 3, 1),
    Sketcher.Constraint("Coincident", 3, 2, 0, 1),
    Sketcher.Constraint("Vertical", 0),
    Sketcher.Constraint("Horizontal", 1),
    Sketcher.Constraint("Vertical", 2),
    Sketcher.Constraint("Horizontal", 3),
    Sketcher.Constraint("Symmetric", 0, 2, 2, 2, -1, 1),
    Sketcher.Constraint("DistanceX", 1, 1, 1, 2, Q("22 mm")),
    Sketcher.Constraint("DistanceY", 0, 2, 0, 1, Q("6 mm")),
])
sketch10.setExpression("Constraints[9]", "Params.sketch10_width")
sketch10.setExpression("Constraints[10]", "Params.sketch10_height")
pad7 = body.newObject("PartDesign::Pad", "Pad006")
pad7.Profile = sketch10
pad7.setExpression("Length", "Params.pad7_length")

# Sketch on XY plane
sketch11 = body.newObject("Sketcher::SketchObject", "Sketch010")
sketch11.AttachmentSupport = (doc.getObject("XY_Plane"), [""])
sketch11.MapMode = "FlatFace"
sketch11.AttachmentOffset = App.Placement(Vector(0, 0, 1), App.Rotation())
sketch11.addGeometry([
    Part.LineSegment(Vector(-11, -8, 0), Vector(-11, -9, 0)),  # 0
    Part.LineSegment(Vector(-11, -9, 0), Vector(-5, -9, 0)),  # 1
    Part.LineSegment(Vector(-5, -9, 0), Vector(-5, -8, 0)),  # 2
    Part.LineSegment(Vector(-5, -8, 0), Vector(-11, -8, 0)),  # 3
    Part.LineSegment(Vector(5, -8, 0), Vector(5, -9, 0)),  # 4
    Part.LineSegment(Vector(5, -9, 0), Vector(11, -9, 0)),  # 5
    Part.LineSegment(Vector(11, -9, 0), Vector(11, -8, 0)),  # 6
    Part.LineSegment(Vector(11, -8, 0), Vector(5, -8, 0)),  # 7
], False)
sketch11.addConstraint([
    Sketcher.Constraint("Coincident", 0, 2, 1, 1),
    Sketcher.Constraint("Coincident", 1, 2, 2, 1),
    Sketcher.Constraint("Coincident", 2, 2, 3, 1),
    Sketcher.Constraint("Coincident", 3, 2, 0, 1),
    Sketcher.Constraint("Coincident", 4, 2, 5, 1),
    Sketcher.Constraint("Coincident", 5, 2, 6, 1),
    Sketcher.Constraint("Coincident", 6, 2, 7, 1),
    Sketcher.Constraint("Coincident", 7, 2, 4, 1),
    Sketcher.Constraint("Vertical", 0),
    Sketcher.Constraint("Horizontal", 1),
    Sketcher.Constraint("Vertical", 2),
    Sketcher.Constraint("Horizontal", 3),
    Sketcher.Constraint("Vertical", 4),
    Sketcher.Constraint("Horizontal", 5),
    Sketcher.Constraint("Vertical", 6),
    Sketcher.Constraint("Horizontal", 7),
    Sketcher.Constraint("Symmetric", 1, 2, 4, 2, -2),
    Sketcher.Constraint("Symmetric", 3, 2, 6, 2, -2),
    Sketcher.Constraint("DistanceX", 1, 1, 1, 2, Q("6 mm")),
    Sketcher.Constraint("DistanceY", 0, 2, 0, 1, Q("1 mm")),
    Sketcher.Constraint("DistanceX", 0, 2, -1, 1, Q("11 mm")),
    Sketcher.Constraint("DistanceY", 0, 2, -1, 1, Q("9 mm")),
])
sketch11.setExpression("Constraints[18]", "Params.sketch11_width")
sketch11.setExpression("Constraints[19]", "Params.sketch11_height")
pad8 = body.newObject("PartDesign::Pad", "Pad007")
pad8.Profile = sketch11
pad8.setExpression("Length", "Params.pad8_length")

# Sketch on XY plane
sketch12 = body.newObject("Sketcher::SketchObject", "Sketch011")
sketch12.AttachmentSupport = (doc.getObject("XY_Plane"), [""])
sketch12.MapMode = "FlatFace"
sketch12.AttachmentOffset = App.Placement(Vector(0, 0, 23.5), App.Rotation())
sketch12.addGeometry([
    Part.LineSegment(Vector(-11, -2, 0), Vector(-11, -3, 0)),  # 0
    Part.LineSegment(Vector(-11, -3, 0), Vector(-5, -3, 0)),  # 1
    Part.LineSegment(Vector(-5, -3, 0), Vector(-5, -2, 0)),  # 2
    Part.LineSegment(Vector(-5, -2, 0), Vector(-11, -2, 0)),  # 3
    Part.LineSegment(Vector(5, -2, 0), Vector(5, -3, 0)),  # 4
    Part.LineSegment(Vector(5, -3, 0), Vector(11, -3, 0)),  # 5
    Part.LineSegment(Vector(11, -3, 0), Vector(11, -2, 0)),  # 6
    Part.LineSegment(Vector(11, -2, 0), Vector(5, -2, 0)),  # 7
], False)
sketch12.addConstraint([
    Sketcher.Constraint("Coincident", 0, 2, 1, 1),
    Sketcher.Constraint("Coincident", 1, 2, 2, 1),
    Sketcher.Constraint("Coincident", 2, 2, 3, 1),
    Sketcher.Constraint("Coincident", 3, 2, 0, 1),
    Sketcher.Constraint("Coincident", 4, 2, 5, 1),
    Sketcher.Constraint("Coincident", 5, 2, 6, 1),
    Sketcher.Constraint("Coincident", 6, 2, 7, 1),
    Sketcher.Constraint("Coincident", 7, 2, 4, 1),
    Sketcher.Constraint("Vertical", 0),
    Sketcher.Constraint("Horizontal", 1),
    Sketcher.Constraint("Vertical", 2),
    Sketcher.Constraint("Horizontal", 3),
    Sketcher.Constraint("Vertical", 4),
    Sketcher.Constraint("Horizontal", 5),
    Sketcher.Constraint("Vertical", 6),
    Sketcher.Constraint("Horizontal", 7),
    Sketcher.Constraint("Symmetric", 1, 2, 4, 2, -2),
    Sketcher.Constraint("Symmetric", 3, 2, 6, 2, -2),
    Sketcher.Constraint("DistanceX", 1, 1, 1, 2, Q("6 mm")),
    Sketcher.Constraint("DistanceY", 0, 2, 0, 1, Q("1 mm")),
    Sketcher.Constraint("DistanceX", 0, 2, -1, 1, Q("11 mm")),
    Sketcher.Constraint("DistanceY", 0, 2, -1, 1, Q("3 mm")),
])
sketch12.setExpression("Constraints[18]", "Params.sketch12_width")
sketch12.setExpression("Constraints[19]", "Params.sketch12_height")
pad9 = body.newObject("PartDesign::Pad", "Pad008")
pad9.Profile = sketch12
pad9.setExpression("Length", "Params.pad9_length")

# Sketch on XY plane
sketch13 = body.newObject("Sketcher::SketchObject", "Sketch012")
sketch13.AttachmentSupport = (doc.getObject("XY_Plane"), [""])
sketch13.MapMode = "FlatFace"
sketch13.AttachmentOffset = App.Placement(Vector(0, 0, 28), App.Rotation())
sketch13.addGeometry([
    Part.LineSegment(Vector(-11, -2, 0), Vector(-11, -9, 0)),  # 0
    Part.LineSegment(Vector(-11, -9, 0), Vector(-5, -9, 0)),  # 1
    Part.LineSegment(Vector(-5, -9, 0), Vector(-5, -2, 0)),  # 2
    Part.LineSegment(Vector(-5, -2, 0), Vector(-11, -2, 0)),  # 3
    Part.LineSegment(Vector(5, -2, 0), Vector(5, -9, 0)),  # 4
    Part.LineSegment(Vector(5, -9, 0), Vector(11, -9, 0)),  # 5
    Part.LineSegment(Vector(11, -9, 0), Vector(11, -2, 0)),  # 6
    Part.LineSegment(Vector(11, -2, 0), Vector(5, -2, 0)),  # 7
], False)
sketch13.addConstraint([
    Sketcher.Constraint("Coincident", 0, 2, 1, 1),
    Sketcher.Constraint("Coincident", 1, 2, 2, 1),
    Sketcher.Constraint("Coincident", 2, 2, 3, 1),
    Sketcher.Constraint("Coincident", 3, 2, 0, 1),
    Sketcher.Constraint("Coincident", 4, 2, 5, 1),
    Sketcher.Constraint("Coincident", 5, 2, 6, 1),
    Sketcher.Constraint("Coincident", 6, 2, 7, 1),
    Sketcher.Constraint("Coincident", 7, 2, 4, 1),
    Sketcher.Constraint("Vertical", 0),
    Sketcher.Constraint("Horizontal", 1),
    Sketcher.Constraint("Vertical", 2),
    Sketcher.Constraint("Horizontal", 3),
    Sketcher.Constraint("Vertical", 4),
    Sketcher.Constraint("Horizontal", 5),
    Sketcher.Constraint("Vertical", 6),
    Sketcher.Constraint("Horizontal", 7),
    Sketcher.Constraint("Symmetric", 1, 2, 4, 2, -2),
    Sketcher.Constraint("Symmetric", 3, 2, 6, 2, -2),
    Sketcher.Constraint("DistanceX", 1, 1, 1, 2, Q("6 mm")),
    Sketcher.Constraint("DistanceY", 0, 2, 0, 1, Q("7 mm")),
    Sketcher.Constraint("DistanceX", 0, 2, -1, 1, Q("11 mm")),
    Sketcher.Constraint("DistanceY", 0, 2, -1, 1, Q("9 mm")),
])
sketch13.setExpression("Constraints[18]", "Params.sketch13_width")
sketch13.setExpression("Constraints[19]", "Params.sketch13_height")
pad10 = body.newObject("PartDesign::Pad", "Pad009")
pad10.Profile = sketch13
pad10.setExpression("Length", "Params.pad10_length")

# Sketch on YZ plane
sketch14 = body.newObject("Sketcher::SketchObject", "Sketch013")
sketch14.AttachmentSupport = (doc.getObject("YZ_Plane"), [""])
sketch14.MapMode = "FlatFace"
sketch14.AttachmentOffset = App.Placement(Vector(0, 0, -11), App.Rotation())
sketch14.addGeometry([
    Part.LineSegment(Vector(-2, 19, 0), Vector(-2, 12, 0)),
    Part.LineSegment(Vector(-2, 12, 0), Vector(-9, 12, 0)),
    Part.LineSegment(Vector(-9, 12, 0), Vector(-9, 19, 0)),
    Part.LineSegment(Vector(-9, 19, 0), Vector(-2, 19, 0)),
], False)
sketch14.addConstraint([
    Sketcher.Constraint("Coincident", 0, 2, 1, 1),
    Sketcher.Constraint("Coincident", 1, 2, 2, 1),
    Sketcher.Constraint("Coincident", 2, 2, 3, 1),
    Sketcher.Constraint("Coincident", 3, 2, 0, 1),
    Sketcher.Constraint("Vertical", 0),
    Sketcher.Constraint("Horizontal", 1),
    Sketcher.Constraint("Vertical", 2),
    Sketcher.Constraint("Horizontal", 3),
    Sketcher.Constraint("Equal", 3, 0),
    Sketcher.Constraint("DistanceX", 1, 2, 1, 1, Q("7 mm")),
    Sketcher.Constraint("DistanceX", 0, 2, -1, 1, Q("2 mm")),
    Sketcher.Constraint("DistanceY", -1, 1, 0, 2, Q("12 mm")),
])
sketch14.setExpression("Constraints[9]", "Params.sketch14_width")
pad11 = body.newObject("PartDesign::Pad", "Pad010")
pad11.Profile = sketch14
pad11.setExpression("Length", "Params.pad11_length")
pad11.Reversed = True

# Sketch on YZ plane
sketch15 = body.newObject("Sketcher::SketchObject", "Sketch014")
sketch15.AttachmentSupport = (doc.getObject("YZ_Plane"), [""])
sketch15.MapMode = "FlatFace"
sketch15.AttachmentOffset = App.Placement(Vector(0, 0, 11), App.Rotation())
sketch15.addGeometry([
    Part.LineSegment(Vector(-9, 19, 0), Vector(-9, 12, 0)),
    Part.LineSegment(Vector(-9, 12, 0), Vector(-2, 12, 0)),
    Part.LineSegment(Vector(-2, 12, 0), Vector(-2, 19, 0)),
    Part.LineSegment(Vector(-2, 19, 0), Vector(-9, 19, 0)),
], False)
sketch15.addConstraint([
    Sketcher.Constraint("Coincident", 0, 2, 1, 1),
    Sketcher.Constraint("Coincident", 1, 2, 2, 1),
    Sketcher.Constraint("Coincident", 2, 2, 3, 1),
    Sketcher.Constraint("Coincident", 3, 2, 0, 1),
    Sketcher.Constraint("Vertical", 0),
    Sketcher.Constraint("Horizontal", 1),
    Sketcher.Constraint("Vertical", 2),
    Sketcher.Constraint("Horizontal", 3),
    Sketcher.Constraint("Equal", 3, 0),
    Sketcher.Constraint("DistanceX", 1, 1, 1, 2, Q("7 mm")),
    Sketcher.Constraint("DistanceX", 0, 2, -1, 1, Q("9 mm")),
    Sketcher.Constraint("DistanceY", -1, 1, 0, 2, Q("12 mm")),
])
sketch15.setExpression("Constraints[9]", "Params.sketch15_width")
pad12 = body.newObject("PartDesign::Pad", "Pad011")
pad12.Profile = sketch15
pad12.setExpression("Length", "Params.pad12_length")

doc.recompute()
